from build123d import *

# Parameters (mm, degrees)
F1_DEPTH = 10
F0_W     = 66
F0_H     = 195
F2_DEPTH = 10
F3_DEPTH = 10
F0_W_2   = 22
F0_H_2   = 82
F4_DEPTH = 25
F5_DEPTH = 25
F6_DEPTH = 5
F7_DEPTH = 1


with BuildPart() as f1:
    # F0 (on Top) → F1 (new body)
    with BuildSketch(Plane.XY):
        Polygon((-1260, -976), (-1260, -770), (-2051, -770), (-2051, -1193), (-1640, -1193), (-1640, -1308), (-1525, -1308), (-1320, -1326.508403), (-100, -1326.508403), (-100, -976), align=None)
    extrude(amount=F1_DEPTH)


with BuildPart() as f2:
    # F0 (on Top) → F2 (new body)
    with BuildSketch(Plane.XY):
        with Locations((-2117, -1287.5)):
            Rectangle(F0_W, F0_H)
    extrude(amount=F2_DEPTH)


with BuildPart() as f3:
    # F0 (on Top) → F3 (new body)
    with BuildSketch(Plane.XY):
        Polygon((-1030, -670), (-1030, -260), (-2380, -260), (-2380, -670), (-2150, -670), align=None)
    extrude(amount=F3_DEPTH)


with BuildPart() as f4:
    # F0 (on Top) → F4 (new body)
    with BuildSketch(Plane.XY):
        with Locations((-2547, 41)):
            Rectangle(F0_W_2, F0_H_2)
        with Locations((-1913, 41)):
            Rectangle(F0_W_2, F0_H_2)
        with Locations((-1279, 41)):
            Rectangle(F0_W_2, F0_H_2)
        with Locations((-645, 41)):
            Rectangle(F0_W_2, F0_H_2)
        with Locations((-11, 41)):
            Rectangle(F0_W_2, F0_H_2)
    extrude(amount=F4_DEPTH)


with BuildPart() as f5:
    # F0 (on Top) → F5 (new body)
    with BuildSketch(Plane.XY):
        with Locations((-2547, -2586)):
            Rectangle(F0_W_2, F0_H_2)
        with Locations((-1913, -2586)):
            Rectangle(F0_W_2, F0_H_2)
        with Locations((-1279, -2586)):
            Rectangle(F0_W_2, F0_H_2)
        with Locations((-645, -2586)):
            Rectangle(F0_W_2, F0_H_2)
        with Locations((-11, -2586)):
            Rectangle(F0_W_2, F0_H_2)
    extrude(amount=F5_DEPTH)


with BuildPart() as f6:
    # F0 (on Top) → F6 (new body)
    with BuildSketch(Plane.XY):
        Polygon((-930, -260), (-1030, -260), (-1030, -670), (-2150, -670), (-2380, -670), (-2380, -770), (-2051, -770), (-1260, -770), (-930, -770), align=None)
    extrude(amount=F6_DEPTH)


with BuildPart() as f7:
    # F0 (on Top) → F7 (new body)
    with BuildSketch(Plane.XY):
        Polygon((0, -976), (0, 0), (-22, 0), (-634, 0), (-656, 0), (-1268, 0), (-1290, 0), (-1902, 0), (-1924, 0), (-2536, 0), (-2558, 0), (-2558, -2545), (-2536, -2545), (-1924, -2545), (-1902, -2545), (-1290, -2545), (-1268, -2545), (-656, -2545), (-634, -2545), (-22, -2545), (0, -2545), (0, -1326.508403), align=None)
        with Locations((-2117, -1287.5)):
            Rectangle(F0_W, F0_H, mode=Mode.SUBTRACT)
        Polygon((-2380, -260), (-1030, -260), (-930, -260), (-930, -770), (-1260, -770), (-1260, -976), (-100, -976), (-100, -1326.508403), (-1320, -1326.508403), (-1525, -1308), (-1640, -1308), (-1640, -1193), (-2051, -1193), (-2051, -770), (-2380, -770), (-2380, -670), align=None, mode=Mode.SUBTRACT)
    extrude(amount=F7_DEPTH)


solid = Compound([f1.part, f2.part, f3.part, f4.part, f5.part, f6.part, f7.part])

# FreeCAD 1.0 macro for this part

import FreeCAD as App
import Part
import Sketcher
from FreeCAD import Vector
Q = App.Units.Quantity


def add_polygon(sketch, points):
    """Adds a closed chain of lines whose ends are joined by coincident constraints."""
    first, n = sketch.GeometryCount, len(points)
    for a, b in zip(points, points[1:] + points[:1]):
        sketch.addGeometry(Part.LineSegment(App.Vector(*a, 0), App.Vector(*b, 0)), False)
    for i in range(n):
        sketch.addConstraint(Sketcher.Constraint("Coincident", first + i, 2, first + (i + 1) % n, 1))

doc = App.newDocument("Part")
body = doc.addObject("PartDesign::Body", "Body")

# Sketch on XY plane
sketch1 = body.newObject("Sketcher::SketchObject", "Sketch")
sketch1.AttachmentSupport = (doc.getObject("XY_Plane"), [""])
sketch1.MapMode = "FlatFace"
add_polygon(sketch1, [(-1260, -976), (-1260, -770), (-2051, -770), (-2051, -1193), (-1640, -1193), (-1640, -1308), (-1525, -1308), (-1320, -1327), (-100, -1327), (-100, -976)])  # lines 0-9
sketch1.addConstraint([
    Sketcher.Constraint("Vertical", 0),
    Sketcher.Constraint("Horizontal", 1),
    Sketcher.Constraint("Vertical", 2),
    Sketcher.Constraint("Horizontal", 3),
    Sketcher.Constraint("Vertical", 4),
    Sketcher.Constraint("Horizontal", 5),
    Sketcher.Constraint("Horizontal", 7),
    Sketcher.Constraint("Vertical", 8),
    Sketcher.Constraint("Horizontal", 9),
    Sketcher.Constraint("Equal", 5, 4),
    Sketcher.Constraint("DistanceX", 1, 2, 1, 1, Q("791 mm")),
    Sketcher.Constraint("DistanceX", 3, 1, 3, 2, Q("411 mm")),
    Sketcher.Constraint("DistanceX", 5, 1, 5, 2, Q("115 mm")),
    Sketcher.Constraint("DistanceX", 7, 1, 7, 2, Q("1220 mm")),
    Sketcher.Constraint("DistanceX", 9, 2, 9, 1, Q("1160 mm")),
    Sketcher.Constraint("DistanceY", 0, 1, 0, 2, Q("206 mm")),
    Sketcher.Constraint("DistanceY", 2, 2, 2, 1, Q("423 mm")),
    Sketcher.Constraint("DistanceX", 0, 2, -1, 1, Q("1260 mm")),
    Sketcher.Constraint("DistanceY", 0, 2, -1, 1, Q("770 mm")),
    Sketcher.Constraint("Distance", 6, Q("205.833819 mm")),
])
pad1 = body.newObject("PartDesign::Pad", "Pad")
pad1.Profile = sketch1
pad1.Length = 10
body2 = doc.addObject("PartDesign::Body", "Body001")

# Sketch on XY plane
sketch2 = body2.newObject("Sketcher::SketchObject", "Sketch001")
sketch2.AttachmentSupport = (doc.getObject("XY_Plane001"), [""])
sketch2.MapMode = "FlatFace"
add_polygon(sketch2, [(-2150, -1190), (-2150, -1385), (-2084, -1385), (-2084, -1190)])  # lines 0-3
sketch2.addConstraint([
    Sketcher.Constraint("Vertical", 0),
    Sketcher.Constraint("Horizontal", 1),
    Sketcher.Constraint("Vertical", 2),
    Sketcher.Constraint("Horizontal", 3),
    Sketcher.Constraint("DistanceX", 1, 1, 1, 2, Q("66 mm")),
    Sketcher.Constraint("DistanceY", 0, 2, 0, 1, Q("195 mm")),
    Sketcher.Constraint("DistanceX", 0, 2, -1, 1, Q("2150 mm")),
    Sketcher.Constraint("DistanceY", 0, 2, -1, 1, Q("1385 mm")),
])
pad2 = body2.newObject("PartDesign::Pad", "Pad001")
pad2.Profile = sketch2
pad2.Length = 10
body3 = doc.addObject("PartDesign::Body", "Body002")

# Sketch on XY plane
sketch3 = body3.newObject("Sketcher::SketchObject", "Sketch002")
sketch3.AttachmentSupport = (doc.getObject("XY_Plane002"), [""])
sketch3.MapMode = "FlatFace"
add_polygon(sketch3, [(-1030, -670), (-1030, -260), (-2380, -260), (-2380, -670)])  # lines 0-3
sketch3.addConstraint([
    Sketcher.Constraint("Vertical", 0),
    Sketcher.Constraint("Horizontal", 1),
    Sketcher.Constraint("Vertical", 2),
    Sketcher.Constraint("Horizontal", 3),
    Sketcher.Constraint("DistanceX", 1, 2, 1, 1, Q("1350 mm")),
    Sketcher.Constraint("DistanceY", 0, 1, 0, 2, Q("410 mm")),
    Sketcher.Constraint("DistanceX", 0, 2, -1, 1, Q("1030 mm")),
    Sketcher.Constraint("DistanceY", 0, 2, -1, 1, Q("260 mm")),
])
pad3 = body3.newObject("PartDesign::Pad", "Pad002")
pad3.Profile = sketch3
pad3.Length = 10
body4 = doc.addObject("PartDesign::Body", "Body003")
body4.AllowCompound = True

# Sketch on XY plane
sketch4 = body4.newObject("Sketcher::SketchObject", "Sketch003")
sketch4.AttachmentSupport = (doc.getObject("XY_Plane003"), [""])
sketch4.MapMode = "FlatFace"
add_polygon(sketch4, [(-2558, 82), (-2558, 0), (-2536, 0), (-2536, 82)])  # lines 0-3
add_polygon(sketch4, [(-1924, 82), (-1924, 0), (-1902, 0), (-1902, 82)])  # lines 4-7
add_polygon(sketch4, [(-1290, 82), (-1290, 0), (-1268, 0), (-1268, 82)])  # lines 8-11
add_polygon(sketch4, [(-656, 82), (-656, 0), (-634, 0), (-634, 82)])  # lines 12-15
add_polygon(sketch4, [(-22, 82), (-22, 0), (0, 0), (0, 82)])  # lines 16-19
sketch4.addConstraint([
    Sketcher.Constraint("Vertical", 0),
    Sketcher.Constraint("Horizontal", 1),
    Sketcher.Constraint("Vertical", 2),
    Sketcher.Constraint("Horizontal", 3),
    Sketcher.Constraint("Vertical", 4),
    Sketcher.Constraint("Horizontal", 5),
    Sketcher.Constraint("Vertical", 6),
    Sketcher.Constraint("Horizontal", 7),
    Sketcher.Constraint("Vertical", 8),
    Sketcher.Constraint("Horizontal", 9),
    Sketcher.Constraint("Vertical", 10),
    Sketcher.Constraint("Horizontal", 11),
    Sketcher.Constraint("Vertical", 12),
    Sketcher.Constraint("Horizontal", 13),
    Sketcher.Constraint("Vertical", 14),
    Sketcher.Constraint("Horizontal", 15),
    Sketcher.Constraint("Vertical", 16),
    Sketcher.Constraint("Horizontal", 17),
    Sketcher.Constraint("Vertical", 18),
    Sketcher.Constraint("Horizontal", 19),
    Sketcher.Constraint("Coincident", 17, 2, -1, 1),
    Sketcher.Constraint("PointOnObject", 0, 2, -1),
    Sketcher.Constraint("PointOnObject", 4, 2, -1),
    Sketcher.Constraint("PointOnObject", 8, 2, -1),
    Sketcher.Constraint("PointOnObject", 12, 2, -1),
    Sketcher.Constraint("Horizontal", 3, 2, 6, 2),
    Sketcher.Constraint("Horizontal", 7, 2, 10, 2),
    Sketcher.Constraint("Horizontal", 11, 2, 14, 2),
    Sketcher.Constraint("Horizontal", 15, 2, 18, 2),
    Sketcher.Constraint("Equal", 3, 5),
    Sketcher.Constraint("Equal", 7, 9),
    Sketcher.Constraint("Equal", 11, 13),
    Sketcher.Constraint("Equal", 15, 17),
    Sketcher.Constraint("DistanceX", 1, 1, 1, 2, Q("22 mm")),
    Sketcher.Constraint("DistanceY", 0, 2, 0, 1, Q("82 mm")),
    Sketcher.Constraint("DistanceX", 0, 2, -1, 1, Q("2558 mm")),
    Sketcher.Constraint("DistanceX", 4, 2, -1, 1, Q("1924 mm")),
    Sketcher.Constraint("DistanceX", 8, 2, -1, 1, Q("1290 mm")),
    Sketcher.Constraint("DistanceX", 12, 2, -1, 1, Q("656 mm")),
])
pad4 = body4.newObject("PartDesign::Pad", "Pad003")
pad4.Profile = sketch4
pad4.Length = 25
body5 = doc.addObject("PartDesign::Body", "Body004")
body5.AllowCompound = True

# Sketch on XY plane
sketch5 = body5.newObject("Sketcher::SketchObject", "Sketch004")
sketch5.AttachmentSupport = (doc.getObject("XY_Plane004"), [""])
sketch5.MapMode = "FlatFace"
add_polygon(sketch5, [(-2558, -2545), (-2558, -2627), (-2536, -2627), (-2536, -2545)])  # lines 0-3
add_polygon(sketch5, [(-1924, -2545), (-1924, -2627), (-1902, -2627), (-1902, -2545)])  # lines 4-7
add_polygon(sketch5, [(-1290, -2545), (-1290, -2627), (-1268, -2627), (-1268, -2545)])  # lines 8-11
add_polygon(sketch5, [(-656, -2545), (-656, -2627), (-634, -2627), (-634, -2545)])  # lines 12-15
add_polygon(sketch5, [(-22, -2545), (-22, -2627), (0, -2627), (0, -2545)])  # lines 16-19
sketch5.addConstraint([
    Sketcher.Constraint("Vertical", 0),
    Sketcher.Constraint("Horizontal", 1),
    Sketcher.Constraint("Vertical", 2),
    Sketcher.Constraint("Horizontal", 3),
    Sketcher.Constraint("Vertical", 4),
    Sketcher.Constraint("Horizontal", 5),
    Sketcher.Constraint("Vertical", 6),
    Sketcher.Constraint("Horizontal", 7),
    Sketcher.Constraint("Vertical", 8),
    Sketcher.Constraint("Horizontal", 9),
    Sketcher.Constraint("Vertical", 10),
    Sketcher.Constraint("Horizontal", 11),
    Sketcher.Constraint("Vertical", 12),
    Sketcher.Constraint("Horizontal", 13),
    Sketcher.Constraint("Vertical", 14),
    Sketcher.Constraint("Horizontal", 15),
    Sketcher.Constraint("Vertical", 16),
    Sketcher.Constraint("Horizontal", 17),
    Sketcher.Constraint("Vertical", 18),
    Sketcher.Constraint("Horizontal", 19),
    Sketcher.Constraint("PointOnObject", 17, 2, -2),
    Sketcher.Constraint("Horizontal", 1, 2, 4, 2),
    Sketcher.Constraint("Horizontal", 3, 2, 6, 2),
    Sketcher.Constraint("Horizontal", 5, 2, 8, 2),
    Sketcher.Constraint("Horizontal", 7, 2, 10, 2),
    Sketcher.Constraint("Horizontal", 9, 2, 12, 2),
    Sketcher.Constraint("Horizontal", 11, 2, 14, 2),
    Sketcher.Constraint("Horizontal", 13, 2, 16, 2),
    Sketcher.Constraint("Horizontal", 15, 2, 18, 2),
    Sketcher.Constraint("Equal", 3, 5),
    Sketcher.Constraint("Equal", 7, 9),
    Sketcher.Constraint("Equal", 11, 13),
    Sketcher.Constraint("Equal", 15, 17),
    Sketcher.Constraint("DistanceX", 1, 1, 1, 2, Q("22 mm")),
    Sketcher.Constraint("DistanceY", 0, 2, 0, 1, Q("82 mm")),
    Sketcher.Constraint("DistanceX", 0, 2, -1, 1, Q("2558 mm")),
    Sketcher.Constraint("DistanceY", 0, 2, -1, 1, Q("2627 mm")),
    Sketcher.Constraint("DistanceX", 4, 2, -1, 1, Q("1924 mm")),
    Sketcher.Constraint("DistanceX", 8, 2, -1, 1, Q("1290 mm")),
    Sketcher.Constraint("DistanceX", 12, 2, -1, 1, Q("656 mm")),
])
pad5 = body5.newObject("PartDesign::Pad", "Pad004")
pad5.Profile = sketch5
pad5.Length = 25
body6 = doc.addObject("PartDesign::Body", "Body005")

# Sketch on XY plane
sketch6 = body6.newObject("Sketcher::SketchObject", "Sketch005")
sketch6.AttachmentSupport = (doc.getObject("XY_Plane005"), [""])
sketch6.MapMode = "FlatFace"
add_polygon(sketch6, [(-930, -260), (-1030, -260), (-1030, -670), (-2380, -670), (-2380, -770), (-930, -770)])  # lines 0-5
sketch6.addConstraint([
    Sketcher.Constraint("Horizontal", 0),
    Sketcher.Constraint("Vertical", 1),
    Sketcher.Constraint("Horizontal", 2),
    Sketcher.Constraint("Vertical", 3),
    Sketcher.Constraint("Horizontal", 4),
    Sketcher.Constraint("Vertical", 5),
    Sketcher.Constraint("Equal", 0, 3),
    Sketcher.Constraint("DistanceX", 0, 2, 0, 1, Q("100 mm")),
    Sketcher.Constraint("DistanceX", 2, 2, 2, 1, Q("1350 mm")),
    Sketcher.Constraint("DistanceY", 1, 2, 1, 1, Q("410 mm")),
    Sketcher.Constraint("DistanceX", 0, 2, -1, 1, Q("1030 mm")),
    Sketcher.Constraint("DistanceY", 0, 2, -1, 1, Q("260 mm")),
])
pad6 = body6.newObject("PartDesign::Pad", "Pad005")
pad6.Profile = sketch6
pad6.Length = 5
body7 = doc.addObject("PartDesign::Body", "Body006")

# Sketch on XY plane
sketch7 = body7.newObject("Sketcher::SketchObject", "Sketch006")
sketch7.AttachmentSupport = (doc.getObject("XY_Plane006"), [""])
sketch7.MapMode = "FlatFace"
add_polygon(sketch7, [(0, 0), (-2558, 0), (-2558, -2545), (0, -2545)])  # lines 0-3
add_polygon(sketch7, [(-2084, -1385), (-2150, -1385), (-2150, -1190), (-2084, -1190)])  # lines 4-7
add_polygon(sketch7, [(-2380, -770), (-2380, -260), (-930, -260), (-930, -770), (-1260, -770), (-1260, -976), (-100, -976), (-100, -1327), (-1320, -1327), (-1525, -1308), (-1640, -1308), (-1640, -1193), (-2051, -1193), (-2051, -770)])  # lines 8-21
sketch7.addConstraint([
    Sketcher.Constraint("Horizontal", 0),
    Sketcher.Constraint("Vertical", 1),
    Sketcher.Constraint("Horizontal", 2),
    Sketcher.Constraint("Vertical", 3),
    Sketcher.Constraint("Horizontal", 4),
    Sketcher.Constraint("Vertical", 5),
    Sketcher.Constraint("Horizontal", 6),
    Sketcher.Constraint("Vertical", 7),
    Sketcher.Constraint("Vertical", 8),
    Sketcher.Constraint("Horizontal", 9),
    Sketcher.Constraint("Vertical", 10),
    Sketcher.Constraint("Horizontal", 11),
    Sketcher.Constraint("Vertical", 12),
    Sketcher.Constraint("Horizontal", 13),
    Sketcher.Constraint("Vertical", 14),
    Sketcher.Constraint("Horizontal", 15),
    Sketcher.Constraint("Horizontal", 17),
    Sketcher.Constraint("Vertical", 18),
    Sketcher.Constraint("Horizontal", 19),
    Sketcher.Constraint("Vertical", 20),
    Sketcher.Constraint("Horizontal", 21),
    Sketcher.Constraint("Coincident", 3, 2, -1, 1),
    Sketcher.Constraint("Horizontal", 11, 2, 20, 2),
    Sketcher.Constraint("Equal", 17, 18),
    Sketcher.Constraint("DistanceX", 0, 2, 0, 1, Q("2558 mm")),
    Sketcher.Constraint("DistanceX", 4, 2, 4, 1, Q("66 mm")),
    Sketcher.Constraint("DistanceX", 9, 1, 9, 2, Q("1450 mm")),
    Sketcher.Constraint("DistanceX", 11, 2, 11, 1, Q("330 mm")),
    Sketcher.Constraint("DistanceX", 13, 1, 13, 2, Q("1160 mm")),
    Sketcher.Constraint("DistanceX", 15, 2, 15, 1, Q("1220 mm")),
    Sketcher.Constraint("DistanceX", 17, 2, 17, 1, Q("115 mm")),
    Sketcher.Constraint("DistanceX", 19, 2, 19, 1, Q("411 mm")),
    Sketcher.Constraint("DistanceX", 21, 2, 21, 1, Q("329 mm")),
    Sketcher.Constraint("DistanceY", 1, 2, 1, 1, Q("2545 mm")),
    Sketcher.Constraint("DistanceY", 5, 1, 5, 2, Q("195 mm")),
    Sketcher.Constraint("DistanceY", 8, 1, 8, 2, Q("510 mm")),
    Sketcher.Constraint("DistanceY", 12, 2, 12, 1, Q("206 mm")),
    Sketcher.Constraint("DistanceY", 20, 1, 20, 2, Q("423 mm")),
    Sketcher.Constraint("DistanceX", 4, 2, -1, 1, Q("2150 mm")),
    Sketcher.Constraint("DistanceY", 4, 2, -1, 1, Q("1385 mm")),
    Sketcher.Constraint("DistanceX", 8, 2, -1, 1, Q("2380 mm")),
    Sketcher.Constraint("DistanceY", 8, 2, -1, 1, Q("260 mm")),
    Sketcher.Constraint("Distance", 16, Q("205.833819 mm")),
])
pad7 = body7.newObject("PartDesign::Pad", "Pad006")
pad7.Profile = sketch7
pad7.Length = 1

doc.recompute()
